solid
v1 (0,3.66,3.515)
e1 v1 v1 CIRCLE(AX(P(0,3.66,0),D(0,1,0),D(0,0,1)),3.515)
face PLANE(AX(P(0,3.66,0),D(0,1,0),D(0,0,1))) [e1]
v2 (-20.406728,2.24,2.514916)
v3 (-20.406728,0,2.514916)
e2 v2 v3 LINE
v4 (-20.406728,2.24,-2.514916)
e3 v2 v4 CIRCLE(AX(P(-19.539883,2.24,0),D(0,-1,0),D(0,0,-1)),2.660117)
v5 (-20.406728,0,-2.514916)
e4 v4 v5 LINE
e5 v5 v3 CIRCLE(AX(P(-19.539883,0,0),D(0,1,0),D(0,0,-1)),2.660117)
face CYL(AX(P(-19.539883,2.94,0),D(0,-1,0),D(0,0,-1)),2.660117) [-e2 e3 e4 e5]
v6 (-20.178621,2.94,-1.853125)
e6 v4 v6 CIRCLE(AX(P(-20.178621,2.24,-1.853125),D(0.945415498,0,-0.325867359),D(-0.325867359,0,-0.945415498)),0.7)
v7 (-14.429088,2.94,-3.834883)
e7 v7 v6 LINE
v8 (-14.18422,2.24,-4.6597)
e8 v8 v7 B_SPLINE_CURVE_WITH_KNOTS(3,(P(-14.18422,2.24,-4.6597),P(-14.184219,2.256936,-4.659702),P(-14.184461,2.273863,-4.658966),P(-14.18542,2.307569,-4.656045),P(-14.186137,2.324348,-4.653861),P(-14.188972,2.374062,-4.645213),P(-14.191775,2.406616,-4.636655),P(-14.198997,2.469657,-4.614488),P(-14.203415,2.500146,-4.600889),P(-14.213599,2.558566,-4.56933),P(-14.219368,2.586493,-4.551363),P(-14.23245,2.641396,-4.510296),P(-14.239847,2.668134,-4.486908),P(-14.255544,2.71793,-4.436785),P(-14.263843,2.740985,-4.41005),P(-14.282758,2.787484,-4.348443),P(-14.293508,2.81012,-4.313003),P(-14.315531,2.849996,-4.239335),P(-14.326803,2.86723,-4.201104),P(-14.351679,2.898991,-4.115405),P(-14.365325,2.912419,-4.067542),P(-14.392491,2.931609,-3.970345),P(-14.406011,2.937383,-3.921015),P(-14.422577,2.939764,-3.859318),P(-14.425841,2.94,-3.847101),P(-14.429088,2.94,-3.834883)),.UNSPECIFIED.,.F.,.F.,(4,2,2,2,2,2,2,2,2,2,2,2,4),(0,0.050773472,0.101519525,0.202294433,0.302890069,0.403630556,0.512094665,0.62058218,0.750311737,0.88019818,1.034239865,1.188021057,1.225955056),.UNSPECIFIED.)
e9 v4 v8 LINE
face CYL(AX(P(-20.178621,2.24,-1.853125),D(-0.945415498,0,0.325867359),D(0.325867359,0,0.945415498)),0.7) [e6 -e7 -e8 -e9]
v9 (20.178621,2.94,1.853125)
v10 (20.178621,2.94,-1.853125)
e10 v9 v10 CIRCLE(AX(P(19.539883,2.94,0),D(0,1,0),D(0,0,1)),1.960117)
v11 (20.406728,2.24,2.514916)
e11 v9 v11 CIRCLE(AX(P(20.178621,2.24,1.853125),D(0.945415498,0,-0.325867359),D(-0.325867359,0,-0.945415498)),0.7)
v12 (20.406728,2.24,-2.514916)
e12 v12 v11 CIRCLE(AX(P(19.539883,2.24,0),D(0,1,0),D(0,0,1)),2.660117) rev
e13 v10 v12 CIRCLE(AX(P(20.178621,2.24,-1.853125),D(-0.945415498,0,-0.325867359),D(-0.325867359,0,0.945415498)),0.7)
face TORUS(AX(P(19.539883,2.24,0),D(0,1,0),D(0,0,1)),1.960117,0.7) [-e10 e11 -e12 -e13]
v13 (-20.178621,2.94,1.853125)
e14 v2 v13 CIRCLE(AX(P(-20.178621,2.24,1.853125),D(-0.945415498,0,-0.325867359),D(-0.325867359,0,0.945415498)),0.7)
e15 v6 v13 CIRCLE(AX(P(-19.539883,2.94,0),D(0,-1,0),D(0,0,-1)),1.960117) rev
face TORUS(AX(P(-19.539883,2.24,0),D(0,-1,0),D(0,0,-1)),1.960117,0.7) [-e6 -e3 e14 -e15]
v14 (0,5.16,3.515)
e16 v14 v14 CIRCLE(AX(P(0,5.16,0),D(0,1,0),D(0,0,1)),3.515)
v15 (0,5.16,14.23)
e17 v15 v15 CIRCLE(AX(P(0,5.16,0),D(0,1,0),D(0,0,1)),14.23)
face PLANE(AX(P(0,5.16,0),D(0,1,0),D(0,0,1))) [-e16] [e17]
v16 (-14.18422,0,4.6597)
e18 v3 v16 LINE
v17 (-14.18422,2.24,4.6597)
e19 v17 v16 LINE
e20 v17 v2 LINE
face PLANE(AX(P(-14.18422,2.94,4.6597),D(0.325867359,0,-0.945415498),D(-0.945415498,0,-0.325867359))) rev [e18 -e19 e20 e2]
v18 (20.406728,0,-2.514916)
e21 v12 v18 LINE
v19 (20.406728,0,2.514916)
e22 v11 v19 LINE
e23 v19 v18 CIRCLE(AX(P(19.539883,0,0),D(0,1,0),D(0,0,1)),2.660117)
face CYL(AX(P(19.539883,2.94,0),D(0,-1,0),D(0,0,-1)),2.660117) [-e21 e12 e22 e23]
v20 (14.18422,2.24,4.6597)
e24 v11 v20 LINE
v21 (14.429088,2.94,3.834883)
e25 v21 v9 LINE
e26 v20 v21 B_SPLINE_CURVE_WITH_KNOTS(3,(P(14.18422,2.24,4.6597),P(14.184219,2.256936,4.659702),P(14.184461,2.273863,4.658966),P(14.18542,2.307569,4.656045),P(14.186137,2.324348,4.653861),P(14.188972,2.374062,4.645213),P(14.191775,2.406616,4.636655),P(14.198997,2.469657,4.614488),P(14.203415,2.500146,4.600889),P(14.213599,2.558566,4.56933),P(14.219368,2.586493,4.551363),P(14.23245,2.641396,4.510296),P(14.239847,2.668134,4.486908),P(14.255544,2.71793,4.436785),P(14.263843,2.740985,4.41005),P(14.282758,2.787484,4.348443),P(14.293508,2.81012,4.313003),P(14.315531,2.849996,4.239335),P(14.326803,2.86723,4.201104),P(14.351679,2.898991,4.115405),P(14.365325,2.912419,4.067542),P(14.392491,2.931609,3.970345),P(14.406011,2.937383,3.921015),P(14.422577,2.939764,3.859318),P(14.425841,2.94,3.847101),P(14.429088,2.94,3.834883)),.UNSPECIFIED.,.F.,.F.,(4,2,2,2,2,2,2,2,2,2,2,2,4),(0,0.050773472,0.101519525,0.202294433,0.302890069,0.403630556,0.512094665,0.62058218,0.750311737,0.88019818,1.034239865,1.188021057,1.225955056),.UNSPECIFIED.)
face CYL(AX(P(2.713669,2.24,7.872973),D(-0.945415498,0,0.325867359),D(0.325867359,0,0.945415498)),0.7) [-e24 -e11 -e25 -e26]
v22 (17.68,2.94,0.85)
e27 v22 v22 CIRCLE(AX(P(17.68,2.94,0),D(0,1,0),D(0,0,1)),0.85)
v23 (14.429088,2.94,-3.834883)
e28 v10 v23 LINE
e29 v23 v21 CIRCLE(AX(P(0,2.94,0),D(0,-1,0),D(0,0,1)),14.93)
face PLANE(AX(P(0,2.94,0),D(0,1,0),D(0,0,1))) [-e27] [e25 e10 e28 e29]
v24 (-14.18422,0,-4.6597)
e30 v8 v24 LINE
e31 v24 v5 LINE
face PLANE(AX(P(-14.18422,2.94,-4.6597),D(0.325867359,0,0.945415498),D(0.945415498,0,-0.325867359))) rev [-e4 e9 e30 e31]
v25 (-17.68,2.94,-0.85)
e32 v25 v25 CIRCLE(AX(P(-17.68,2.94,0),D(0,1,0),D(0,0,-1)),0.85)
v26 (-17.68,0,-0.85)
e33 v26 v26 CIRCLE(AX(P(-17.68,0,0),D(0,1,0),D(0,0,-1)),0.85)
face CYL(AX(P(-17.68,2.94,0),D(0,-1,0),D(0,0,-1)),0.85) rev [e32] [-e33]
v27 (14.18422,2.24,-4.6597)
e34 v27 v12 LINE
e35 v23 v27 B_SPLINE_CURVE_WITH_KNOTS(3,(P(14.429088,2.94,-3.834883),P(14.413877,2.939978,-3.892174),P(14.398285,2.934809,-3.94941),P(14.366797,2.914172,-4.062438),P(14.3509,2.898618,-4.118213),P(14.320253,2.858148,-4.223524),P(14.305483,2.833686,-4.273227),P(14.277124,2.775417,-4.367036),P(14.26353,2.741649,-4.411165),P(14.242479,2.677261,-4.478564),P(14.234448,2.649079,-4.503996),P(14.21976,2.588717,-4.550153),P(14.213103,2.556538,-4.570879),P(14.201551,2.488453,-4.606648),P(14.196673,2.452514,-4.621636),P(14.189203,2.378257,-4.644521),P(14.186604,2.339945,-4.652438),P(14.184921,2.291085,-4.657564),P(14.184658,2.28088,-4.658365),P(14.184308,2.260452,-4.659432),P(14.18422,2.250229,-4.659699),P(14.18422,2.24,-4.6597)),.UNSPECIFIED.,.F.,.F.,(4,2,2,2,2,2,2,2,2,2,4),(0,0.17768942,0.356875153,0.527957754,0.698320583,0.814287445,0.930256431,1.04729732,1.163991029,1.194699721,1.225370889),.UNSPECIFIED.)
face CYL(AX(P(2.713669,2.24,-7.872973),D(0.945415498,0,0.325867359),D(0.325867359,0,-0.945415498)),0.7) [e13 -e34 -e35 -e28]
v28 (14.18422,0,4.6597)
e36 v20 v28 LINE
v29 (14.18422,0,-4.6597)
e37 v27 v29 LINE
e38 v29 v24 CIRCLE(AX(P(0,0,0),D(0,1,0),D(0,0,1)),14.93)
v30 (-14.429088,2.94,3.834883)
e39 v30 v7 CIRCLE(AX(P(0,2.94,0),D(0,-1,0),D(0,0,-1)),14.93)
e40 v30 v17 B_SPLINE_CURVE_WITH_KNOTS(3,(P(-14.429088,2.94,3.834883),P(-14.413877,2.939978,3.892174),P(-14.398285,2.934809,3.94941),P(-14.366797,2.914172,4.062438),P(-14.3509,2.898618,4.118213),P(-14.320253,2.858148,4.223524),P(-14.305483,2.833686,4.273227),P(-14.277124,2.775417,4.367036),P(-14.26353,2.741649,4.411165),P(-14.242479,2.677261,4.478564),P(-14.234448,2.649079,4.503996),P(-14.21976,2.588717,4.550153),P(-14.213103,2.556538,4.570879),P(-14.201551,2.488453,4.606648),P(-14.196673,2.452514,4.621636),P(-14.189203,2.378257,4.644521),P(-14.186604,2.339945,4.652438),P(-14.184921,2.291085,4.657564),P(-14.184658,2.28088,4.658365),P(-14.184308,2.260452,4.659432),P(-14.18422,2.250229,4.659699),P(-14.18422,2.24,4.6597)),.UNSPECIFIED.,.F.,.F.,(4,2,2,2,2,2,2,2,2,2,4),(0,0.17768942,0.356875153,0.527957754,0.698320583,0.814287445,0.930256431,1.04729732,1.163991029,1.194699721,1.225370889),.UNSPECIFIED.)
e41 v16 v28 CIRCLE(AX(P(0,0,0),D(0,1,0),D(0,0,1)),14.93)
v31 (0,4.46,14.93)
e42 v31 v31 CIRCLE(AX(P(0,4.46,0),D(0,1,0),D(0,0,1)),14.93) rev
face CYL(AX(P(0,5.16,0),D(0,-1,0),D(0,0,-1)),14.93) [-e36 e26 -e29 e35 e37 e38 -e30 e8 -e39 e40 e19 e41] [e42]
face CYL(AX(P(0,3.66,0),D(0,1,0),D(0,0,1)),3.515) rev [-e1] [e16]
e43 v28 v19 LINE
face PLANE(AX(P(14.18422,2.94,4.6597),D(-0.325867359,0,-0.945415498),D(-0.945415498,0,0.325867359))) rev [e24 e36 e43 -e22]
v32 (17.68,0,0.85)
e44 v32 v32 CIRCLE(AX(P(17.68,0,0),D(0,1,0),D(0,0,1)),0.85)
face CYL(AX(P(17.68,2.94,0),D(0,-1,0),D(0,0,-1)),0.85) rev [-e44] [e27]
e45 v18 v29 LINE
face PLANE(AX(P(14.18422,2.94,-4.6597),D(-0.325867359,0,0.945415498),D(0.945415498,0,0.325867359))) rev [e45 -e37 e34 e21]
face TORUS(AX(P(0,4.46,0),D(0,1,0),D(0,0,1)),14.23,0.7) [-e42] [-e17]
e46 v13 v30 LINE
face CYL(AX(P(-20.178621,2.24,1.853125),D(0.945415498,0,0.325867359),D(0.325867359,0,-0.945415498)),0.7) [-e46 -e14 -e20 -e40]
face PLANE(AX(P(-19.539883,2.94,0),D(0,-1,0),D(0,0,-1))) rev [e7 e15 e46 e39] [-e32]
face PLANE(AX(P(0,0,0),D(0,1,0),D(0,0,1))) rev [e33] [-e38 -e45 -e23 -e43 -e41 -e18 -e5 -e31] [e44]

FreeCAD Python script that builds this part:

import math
import FreeCAD as App
import Part
import Sketcher

V = App.Vector
Q = App.Units.Quantity


def edges_at(feature, points):
    """Names of the edges that pass closest to the given points."""
    edges = feature.Shape.Edges
    near = lambda p: min(range(len(edges)), key=lambda i: edges[i].distToShape(Part.Vertex(*p))[0])
    return sorted({f"Edge{near(p) + 1}" for p in points})

doc = App.newDocument("Part")
body = doc.addObject("PartDesign::Body", "Body")

# Sketch on XZ plane
sketch1 = doc.addObject("Sketcher::SketchObject", "Sketch")
body.addObject(sketch1)
sketch1.AttachmentSupport = (doc.XZ_Plane, [""])
sketch1.MapMode = "FlatFace"
sketch1.addGeometry(Part.Circle(V(0, 0, 0), V(0, 0, 1), 14.93), False)
sketch1.addConstraint(Sketcher.Constraint("Coincident", 0, 3, -1, 1))
sketch1.addConstraint(Sketcher.Constraint("Diameter", 0, Q("29.86 mm")))
pad1 = doc.addObject("PartDesign::Pad", "Pad")
body.addObject(pad1)
pad1.Profile = sketch1
pad1.Length = 5.16
pad1.Reversed = True

# Sketch on XZ plane
sketch2 = doc.addObject("Sketcher::SketchObject", "Sketch001")
body.addObject(sketch2)
sketch2.AttachmentSupport = (doc.XZ_Plane, [""])
sketch2.MapMode = "FlatFace"
sketch2.addGeometry(Part.LineSegment(V(-20.406728, 2.514916, 0), V(-14.18422, 4.6597, 0)), False)
sketch2.addGeometry(Part.ArcOfCircle(Part.Circle(V(0, 0, 0), V(0, 0, 1), 14.93), math.radians(161.813978), math.radians(198.186022)), False)
sketch2.addGeometry(Part.LineSegment(V(-14.18422, -4.6597, 0), V(-20.406728, -2.514916, 0)), False)
sketch2.addGeometry(Part.ArcOfCircle(Part.Circle(V(-19.539883, 0, 0), V(0, 0, 1), 2.660117), math.radians(109.018132), math.radians(250.981868)), False)
sketch2.addGeometry(Part.Circle(V(-17.68, 0, 0), V(0, 0, 1), 0.85), False)
sketch2.addGeometry(Part.LineSegment(V(20.406728, -2.514916, 0), V(14.18422, -4.6597, 0)), False)
sketch2.addGeometry(Part.ArcOfCircle(Part.Circle(V(0, 0, 0), V(0, 0, 1), 14.93), math.radians(-18.186022), math.radians(18.186022)), False)
sketch2.addGeometry(Part.LineSegment(V(14.18422, 4.6597, 0), V(20.406728, 2.514916, 0)), False)
sketch2.addGeometry(Part.ArcOfCircle(Part.Circle(V(19.539883, 0, 0), V(0, 0, 1), 2.660117), math.radians(-70.981868), math.radians(70.981868)), False)
sketch2.addGeometry(Part.Circle(V(17.68, 0, 0), V(0, 0, 1), 0.85), False)
sketch2.addConstraint(Sketcher.Constraint("Coincident", 0, 2, 1, 1))
sketch2.addConstraint(Sketcher.Constraint("Coincident", 1, 2, 2, 1))
sketch2.addConstraint(Sketcher.Constraint("Tangent", 2, 2, 3, 2))
sketch2.addConstraint(Sketcher.Constraint("Tangent", 3, 1, 0, 1))
sketch2.addConstraint(Sketcher.Constraint("Coincident", 5, 2, 6, 1))
sketch2.addConstraint(Sketcher.Constraint("Coincident", 6, 2, 7, 1))
sketch2.addConstraint(Sketcher.Constraint("Tangent", 7, 2, 8, 2))
sketch2.addConstraint(Sketcher.Constraint("Tangent", 8, 1, 5, 1))
sketch2.addConstraint(Sketcher.Constraint("Coincident", 1, 3, -1, 1))
sketch2.addConstraint(Sketcher.Constraint("Coincident", 6, 3, -1, 1))
sketch2.addConstraint(Sketcher.Constraint("Equal", 1, 6))
sketch2.addConstraint(Sketcher.Constraint("Equal", 3, 8))
sketch2.addConstraint(Sketcher.Constraint("Equal", 4, 9))
sketch2.addConstraint(Sketcher.Constraint("Symmetric", 3, 3, 8, 3, -1, 1))
sketch2.addConstraint(Sketcher.Constraint("Symmetric", 4, 3, 9, 3, -1, 1))
sketch2.addConstraint(Sketcher.Constraint("Symmetric", 3, 1, 7, 2, -2))
sketch2.addConstraint(Sketcher.Constraint("PointOnObject", 4, 3, -1))
sketch2.addConstraint(Sketcher.Constraint("Parallel", 0, 5))
sketch2.addConstraint(Sketcher.Constraint("Parallel", 2, 7))
sketch2.addConstraint(Sketcher.Constraint("Diameter", 4, Q("1.7 mm")))
sketch2.addConstraint(Sketcher.Constraint("Radius", 1, Q("14.93 mm")))
sketch2.addConstraint(Sketcher.Constraint("DistanceX", 4, 3, -1, 1, Q("17.68 mm")))
sketch2.addConstraint(Sketcher.Constraint("Radius", 3, Q("2.660117 mm")))
sketch2.addConstraint(Sketcher.Constraint("DistanceY", -1, 1, 0, 2, Q("4.6597 mm")))
sketch2.addConstraint(Sketcher.Constraint("Distance", 0, Q("6.581771 mm")))
pad2 = doc.addObject("PartDesign::Pad", "Pad001")
body.addObject(pad2)
pad2.Profile = sketch2
pad2.Length = 2.94
pad2.Reversed = True
doc.recompute()

fillet = doc.addObject("PartDesign::Fillet", "Fillet")
body.addObject(fillet)
fillet.Base = (pad2, edges_at(pad2, [(-14.93, 5.16, 0)]))
fillet.Radius = 0.7
doc.recompute()

fillet2 = doc.addObject("PartDesign::Fillet", "Fillet001")
body.addObject(fillet2)
fillet2.Base = (fillet, edges_at(fillet, [
    (-22.2, 2.94, 0),
    (-17.295, 2.94, 3.587),
    (-17.295, 2.94, -3.587),
    (17.295, 2.94, 3.587),
    (22.2, 2.94, 0),
    (17.295, 2.94, -3.587),
]))
fillet2.Radius = 0.7

# Sketch on XZ plane
sketch3 = doc.addObject("Sketcher::SketchObject", "Sketch002")
body.addObject(sketch3)
sketch3.AttachmentSupport = (doc.XZ_Plane, [""])
sketch3.MapMode = "FlatFace"
sketch3.AttachmentOffset = App.Placement(V(0, 0, -5.16), App.Rotation())
sketch3.addGeometry(Part.Circle(V(0, 0, 0), V(0, 0, 1), 3.515), False)
sketch3.addConstraint(Sketcher.Constraint("Coincident", 0, 3, -1, 1))
sketch3.addConstraint(Sketcher.Constraint("Diameter", 0, Q("7.03 mm")))
pocket1 = doc.addObject("PartDesign::Pocket", "Pocket")
body.addObject(pocket1)
pocket1.Profile = sketch3
pocket1.Length = 1.5
pocket1.Reversed = True

doc.recompute()
